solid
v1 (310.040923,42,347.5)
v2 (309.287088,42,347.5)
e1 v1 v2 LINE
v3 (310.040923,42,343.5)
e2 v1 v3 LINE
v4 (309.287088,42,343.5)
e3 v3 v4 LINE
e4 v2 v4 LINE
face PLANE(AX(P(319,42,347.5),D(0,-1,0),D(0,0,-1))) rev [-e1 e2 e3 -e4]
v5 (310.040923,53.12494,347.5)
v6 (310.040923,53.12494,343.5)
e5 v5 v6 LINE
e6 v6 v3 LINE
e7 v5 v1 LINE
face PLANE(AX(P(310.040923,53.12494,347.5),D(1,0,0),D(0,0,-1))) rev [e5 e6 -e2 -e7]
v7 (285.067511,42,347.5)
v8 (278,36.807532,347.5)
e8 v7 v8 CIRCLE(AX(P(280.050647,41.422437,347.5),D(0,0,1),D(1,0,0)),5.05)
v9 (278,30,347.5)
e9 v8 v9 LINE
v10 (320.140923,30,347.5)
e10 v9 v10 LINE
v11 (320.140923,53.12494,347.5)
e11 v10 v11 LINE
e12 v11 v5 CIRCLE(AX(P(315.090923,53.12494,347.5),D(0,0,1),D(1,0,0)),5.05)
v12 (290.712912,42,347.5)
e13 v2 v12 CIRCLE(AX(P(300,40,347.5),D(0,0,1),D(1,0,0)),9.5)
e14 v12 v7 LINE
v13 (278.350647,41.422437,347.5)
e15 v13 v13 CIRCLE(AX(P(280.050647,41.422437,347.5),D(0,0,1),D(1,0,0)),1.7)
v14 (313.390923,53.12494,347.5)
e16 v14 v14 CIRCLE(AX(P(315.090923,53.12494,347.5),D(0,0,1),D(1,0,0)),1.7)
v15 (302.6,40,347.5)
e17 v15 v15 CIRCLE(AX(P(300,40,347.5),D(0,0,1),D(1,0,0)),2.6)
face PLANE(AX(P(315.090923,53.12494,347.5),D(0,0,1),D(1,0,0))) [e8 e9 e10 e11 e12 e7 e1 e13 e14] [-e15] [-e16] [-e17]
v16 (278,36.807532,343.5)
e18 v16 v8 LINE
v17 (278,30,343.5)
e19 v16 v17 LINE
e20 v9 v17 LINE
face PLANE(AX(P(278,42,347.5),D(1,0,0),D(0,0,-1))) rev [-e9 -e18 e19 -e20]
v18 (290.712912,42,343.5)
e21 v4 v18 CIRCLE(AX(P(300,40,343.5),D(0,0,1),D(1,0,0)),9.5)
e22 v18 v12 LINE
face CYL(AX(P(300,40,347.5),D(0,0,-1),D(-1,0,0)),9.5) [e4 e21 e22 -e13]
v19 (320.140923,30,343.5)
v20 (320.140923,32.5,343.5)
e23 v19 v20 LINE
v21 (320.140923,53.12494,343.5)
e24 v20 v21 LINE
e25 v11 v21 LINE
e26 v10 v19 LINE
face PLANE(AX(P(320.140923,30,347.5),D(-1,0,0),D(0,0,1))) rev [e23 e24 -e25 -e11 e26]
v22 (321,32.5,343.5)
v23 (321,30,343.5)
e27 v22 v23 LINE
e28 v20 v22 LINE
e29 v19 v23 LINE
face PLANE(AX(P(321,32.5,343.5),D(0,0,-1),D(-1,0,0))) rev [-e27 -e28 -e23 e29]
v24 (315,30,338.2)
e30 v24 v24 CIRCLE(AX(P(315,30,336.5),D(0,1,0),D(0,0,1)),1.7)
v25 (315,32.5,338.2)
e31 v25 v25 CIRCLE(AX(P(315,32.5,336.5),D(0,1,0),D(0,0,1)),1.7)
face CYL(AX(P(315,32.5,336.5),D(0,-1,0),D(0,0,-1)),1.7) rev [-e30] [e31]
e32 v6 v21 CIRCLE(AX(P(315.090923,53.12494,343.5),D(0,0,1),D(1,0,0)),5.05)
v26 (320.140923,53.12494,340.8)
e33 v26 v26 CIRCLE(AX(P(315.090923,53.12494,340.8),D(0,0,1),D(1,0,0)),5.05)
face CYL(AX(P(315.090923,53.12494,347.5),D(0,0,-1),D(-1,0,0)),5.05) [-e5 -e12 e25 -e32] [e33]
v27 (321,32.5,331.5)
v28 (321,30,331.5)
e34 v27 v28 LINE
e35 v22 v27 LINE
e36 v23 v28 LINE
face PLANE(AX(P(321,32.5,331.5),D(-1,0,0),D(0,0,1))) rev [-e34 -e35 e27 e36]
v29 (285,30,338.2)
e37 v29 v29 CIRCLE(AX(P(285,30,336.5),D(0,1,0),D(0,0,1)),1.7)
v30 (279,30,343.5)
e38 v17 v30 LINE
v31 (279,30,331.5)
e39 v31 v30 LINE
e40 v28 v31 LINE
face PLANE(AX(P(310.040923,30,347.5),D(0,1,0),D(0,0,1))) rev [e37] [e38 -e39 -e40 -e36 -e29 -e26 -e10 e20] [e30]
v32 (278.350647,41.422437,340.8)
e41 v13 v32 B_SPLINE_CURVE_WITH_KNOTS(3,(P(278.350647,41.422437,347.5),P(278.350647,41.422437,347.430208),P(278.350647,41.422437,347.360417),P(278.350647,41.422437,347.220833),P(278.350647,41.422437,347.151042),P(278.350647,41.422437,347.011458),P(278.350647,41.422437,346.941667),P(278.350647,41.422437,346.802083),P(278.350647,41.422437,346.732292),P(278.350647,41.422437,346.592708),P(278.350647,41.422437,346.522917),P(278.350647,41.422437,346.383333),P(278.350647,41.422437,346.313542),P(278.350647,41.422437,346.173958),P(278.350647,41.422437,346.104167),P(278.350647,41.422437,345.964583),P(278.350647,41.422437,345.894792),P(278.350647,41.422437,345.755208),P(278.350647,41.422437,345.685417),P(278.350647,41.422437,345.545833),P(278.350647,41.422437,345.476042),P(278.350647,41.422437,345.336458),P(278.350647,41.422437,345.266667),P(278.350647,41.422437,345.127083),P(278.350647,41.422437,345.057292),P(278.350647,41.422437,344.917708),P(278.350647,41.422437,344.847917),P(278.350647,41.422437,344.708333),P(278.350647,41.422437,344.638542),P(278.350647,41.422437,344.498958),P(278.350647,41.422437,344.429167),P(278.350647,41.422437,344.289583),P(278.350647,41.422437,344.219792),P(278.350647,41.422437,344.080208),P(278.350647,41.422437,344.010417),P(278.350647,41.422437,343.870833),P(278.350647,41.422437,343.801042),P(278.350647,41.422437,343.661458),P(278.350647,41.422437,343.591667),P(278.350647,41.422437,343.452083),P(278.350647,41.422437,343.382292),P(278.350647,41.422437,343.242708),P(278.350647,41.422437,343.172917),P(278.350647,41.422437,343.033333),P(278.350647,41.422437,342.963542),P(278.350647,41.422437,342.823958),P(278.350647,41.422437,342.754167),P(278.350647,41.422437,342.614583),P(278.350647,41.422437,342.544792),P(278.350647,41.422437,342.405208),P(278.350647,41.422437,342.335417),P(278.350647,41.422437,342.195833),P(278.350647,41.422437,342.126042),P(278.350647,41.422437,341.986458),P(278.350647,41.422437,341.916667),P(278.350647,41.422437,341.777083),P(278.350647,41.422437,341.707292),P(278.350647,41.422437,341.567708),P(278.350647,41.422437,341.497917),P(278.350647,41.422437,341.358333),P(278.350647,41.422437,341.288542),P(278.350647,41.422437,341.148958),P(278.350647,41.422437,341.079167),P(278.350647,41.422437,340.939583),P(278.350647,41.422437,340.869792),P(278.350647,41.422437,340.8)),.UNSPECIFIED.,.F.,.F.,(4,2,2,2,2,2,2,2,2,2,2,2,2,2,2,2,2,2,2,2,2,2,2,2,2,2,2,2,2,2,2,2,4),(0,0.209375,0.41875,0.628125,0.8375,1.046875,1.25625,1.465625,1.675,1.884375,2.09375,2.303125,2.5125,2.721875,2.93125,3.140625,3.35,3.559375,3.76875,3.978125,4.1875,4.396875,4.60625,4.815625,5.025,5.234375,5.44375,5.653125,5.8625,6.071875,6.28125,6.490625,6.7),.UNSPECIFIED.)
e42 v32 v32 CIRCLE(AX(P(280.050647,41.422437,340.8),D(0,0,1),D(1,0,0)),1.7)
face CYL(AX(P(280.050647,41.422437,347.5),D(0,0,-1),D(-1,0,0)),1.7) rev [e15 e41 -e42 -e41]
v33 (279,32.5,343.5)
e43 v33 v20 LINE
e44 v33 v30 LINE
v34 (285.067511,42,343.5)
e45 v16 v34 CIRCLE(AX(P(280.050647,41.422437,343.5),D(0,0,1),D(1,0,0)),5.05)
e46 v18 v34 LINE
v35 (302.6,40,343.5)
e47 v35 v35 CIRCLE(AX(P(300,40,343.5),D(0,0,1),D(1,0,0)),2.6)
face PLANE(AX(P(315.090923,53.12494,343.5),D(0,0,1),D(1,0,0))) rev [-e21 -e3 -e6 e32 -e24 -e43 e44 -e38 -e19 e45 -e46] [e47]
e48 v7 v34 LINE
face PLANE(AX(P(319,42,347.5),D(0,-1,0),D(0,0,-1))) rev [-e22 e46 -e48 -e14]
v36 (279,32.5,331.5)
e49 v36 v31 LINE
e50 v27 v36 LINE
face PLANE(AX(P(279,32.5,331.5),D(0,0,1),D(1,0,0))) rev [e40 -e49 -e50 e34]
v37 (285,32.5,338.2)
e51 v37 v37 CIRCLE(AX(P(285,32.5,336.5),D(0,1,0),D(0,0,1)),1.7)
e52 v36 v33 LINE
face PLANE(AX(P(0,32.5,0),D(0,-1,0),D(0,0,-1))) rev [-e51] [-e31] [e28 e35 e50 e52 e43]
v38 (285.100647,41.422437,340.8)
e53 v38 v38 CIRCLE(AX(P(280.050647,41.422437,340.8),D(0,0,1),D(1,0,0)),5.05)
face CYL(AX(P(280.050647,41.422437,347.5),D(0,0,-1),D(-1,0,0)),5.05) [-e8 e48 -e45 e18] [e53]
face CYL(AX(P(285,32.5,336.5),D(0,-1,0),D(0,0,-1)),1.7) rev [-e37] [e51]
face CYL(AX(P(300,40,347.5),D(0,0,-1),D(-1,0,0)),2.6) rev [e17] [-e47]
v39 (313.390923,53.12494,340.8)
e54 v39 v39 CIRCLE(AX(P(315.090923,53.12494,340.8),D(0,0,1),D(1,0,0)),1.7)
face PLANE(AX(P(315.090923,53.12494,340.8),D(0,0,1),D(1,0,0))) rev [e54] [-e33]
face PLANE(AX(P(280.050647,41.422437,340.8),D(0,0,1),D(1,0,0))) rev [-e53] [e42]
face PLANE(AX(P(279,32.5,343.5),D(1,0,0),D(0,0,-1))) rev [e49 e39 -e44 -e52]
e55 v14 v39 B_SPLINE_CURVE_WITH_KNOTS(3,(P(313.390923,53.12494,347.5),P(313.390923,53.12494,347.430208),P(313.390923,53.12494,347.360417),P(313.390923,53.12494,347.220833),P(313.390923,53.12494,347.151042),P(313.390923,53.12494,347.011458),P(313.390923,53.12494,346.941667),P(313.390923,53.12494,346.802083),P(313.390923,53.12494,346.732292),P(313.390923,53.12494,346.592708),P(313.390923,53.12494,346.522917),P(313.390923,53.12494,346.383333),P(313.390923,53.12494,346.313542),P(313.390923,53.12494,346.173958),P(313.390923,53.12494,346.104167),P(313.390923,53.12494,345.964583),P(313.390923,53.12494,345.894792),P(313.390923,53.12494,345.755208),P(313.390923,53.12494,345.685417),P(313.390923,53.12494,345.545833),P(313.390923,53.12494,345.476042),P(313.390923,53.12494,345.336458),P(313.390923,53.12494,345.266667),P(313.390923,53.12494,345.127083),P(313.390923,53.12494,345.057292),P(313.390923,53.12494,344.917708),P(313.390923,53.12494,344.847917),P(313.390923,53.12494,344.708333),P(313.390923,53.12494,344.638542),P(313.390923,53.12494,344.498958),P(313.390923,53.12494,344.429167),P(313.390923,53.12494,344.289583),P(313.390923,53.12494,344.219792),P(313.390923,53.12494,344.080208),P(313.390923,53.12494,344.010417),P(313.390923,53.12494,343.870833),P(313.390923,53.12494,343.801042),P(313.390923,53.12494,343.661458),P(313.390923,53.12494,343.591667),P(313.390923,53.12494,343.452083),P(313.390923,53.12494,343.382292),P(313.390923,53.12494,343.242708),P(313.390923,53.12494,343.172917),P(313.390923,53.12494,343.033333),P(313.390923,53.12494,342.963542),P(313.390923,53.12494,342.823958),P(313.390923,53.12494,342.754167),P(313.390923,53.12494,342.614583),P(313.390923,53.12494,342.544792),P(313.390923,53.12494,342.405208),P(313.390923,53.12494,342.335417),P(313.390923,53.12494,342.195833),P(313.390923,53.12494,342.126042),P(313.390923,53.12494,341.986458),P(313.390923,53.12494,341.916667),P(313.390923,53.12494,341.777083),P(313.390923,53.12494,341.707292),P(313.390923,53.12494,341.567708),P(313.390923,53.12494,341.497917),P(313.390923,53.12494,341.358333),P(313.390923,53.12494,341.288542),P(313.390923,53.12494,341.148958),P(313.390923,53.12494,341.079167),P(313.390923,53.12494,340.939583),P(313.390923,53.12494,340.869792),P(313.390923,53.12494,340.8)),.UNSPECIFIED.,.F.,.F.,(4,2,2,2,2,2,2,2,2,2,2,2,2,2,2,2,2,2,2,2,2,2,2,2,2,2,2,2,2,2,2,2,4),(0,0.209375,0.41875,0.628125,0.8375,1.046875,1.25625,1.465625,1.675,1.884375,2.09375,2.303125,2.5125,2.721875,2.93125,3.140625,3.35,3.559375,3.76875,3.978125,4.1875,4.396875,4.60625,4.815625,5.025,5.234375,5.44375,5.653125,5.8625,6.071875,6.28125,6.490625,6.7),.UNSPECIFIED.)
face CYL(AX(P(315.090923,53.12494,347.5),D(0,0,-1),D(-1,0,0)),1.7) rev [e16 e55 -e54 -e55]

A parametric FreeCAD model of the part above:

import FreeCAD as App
import Part
import Sketcher
Q = App.Units.Quantity

doc = App.newDocument("Part")
body = doc.addObject("PartDesign::Body", "Body")

# Sketch on XY plane
sketch1 = body.newObject("Sketcher::SketchObject", "Sketch")
sketch1.AttachmentSupport = (doc.getObject("XY_Plane"), [""])
sketch1.MapMode = "FlatFace"
sketch1.AttachmentOffset = App.Placement(App.Vector(0, 0, 343.5), App.Rotation())
sketch1.addGeometry(Part.LineSegment(App.Vector(278, 42, 0), App.Vector(278, 30, 0)), False)
sketch1.addGeometry(Part.LineSegment(App.Vector(278, 30, 0), App.Vector(319, 30, 0)), False)
sketch1.addGeometry(Part.LineSegment(App.Vector(319, 30, 0), App.Vector(319, 42, 0)), False)
sketch1.addGeometry(Part.LineSegment(App.Vector(319, 42, 0), App.Vector(278, 42, 0)), False)
sketch1.addConstraint(Sketcher.Constraint("Coincident", 0, 2, 1, 1))
sketch1.addConstraint(Sketcher.Constraint("Coincident", 1, 2, 2, 1))
sketch1.addConstraint(Sketcher.Constraint("Coincident", 2, 2, 3, 1))
sketch1.addConstraint(Sketcher.Constraint("Coincident", 3, 2, 0, 1))
sketch1.addConstraint(Sketcher.Constraint("Vertical", 0))
sketch1.addConstraint(Sketcher.Constraint("Horizontal", 1))
sketch1.addConstraint(Sketcher.Constraint("Vertical", 2))
sketch1.addConstraint(Sketcher.Constraint("Horizontal", 3))
sketch1.addConstraint(Sketcher.Constraint("DistanceX", 1, 1, 1, 2, Q("41 mm")))
sketch1.addConstraint(Sketcher.Constraint("DistanceY", 0, 2, 0, 1, Q("12 mm")))
sketch1.addConstraint(Sketcher.Constraint("DistanceX", -1, 1, 0, 2, Q("278 mm")))
sketch1.addConstraint(Sketcher.Constraint("DistanceY", -1, 1, 0, 2, Q("30 mm")))
pad1 = body.newObject("PartDesign::Pad", "Pad")
pad1.Profile = sketch1
pad1.Length = 4

# Sketch on XY plane
sketch2 = body.newObject("Sketcher::SketchObject", "Sketch001")
sketch2.AttachmentSupport = (doc.getObject("XY_Plane"), [""])
sketch2.MapMode = "FlatFace"
sketch2.AttachmentOffset = App.Placement(App.Vector(0, 0, 343.5), App.Rotation())
sketch2.addGeometry(Part.Circle(App.Vector(300, 40, 0), App.Vector(0, 0, 1), 9.5), False)
sketch2.addGeometry(Part.Circle(App.Vector(300, 40, 0), App.Vector(0, 0, 1), 2.6), False)
sketch2.addConstraint(Sketcher.Constraint("Coincident", 1, 3, 0, 3))
sketch2.addConstraint(Sketcher.Constraint("Diameter", 0, Q("19 mm")))
sketch2.addConstraint(Sketcher.Constraint("Diameter", 1, Q("5.2 mm")))
sketch2.addConstraint(Sketcher.Constraint("DistanceX", -1, 1, 0, 3, Q("300 mm")))
sketch2.addConstraint(Sketcher.Constraint("DistanceY", -1, 1, 0, 3, Q("40 mm")))
pad2 = body.newObject("PartDesign::Pad", "Pad001")
pad2.Profile = sketch2
pad2.Length = 4

# Sketch on XY plane
sketch3 = body.newObject("Sketcher::SketchObject", "Sketch002")
sketch3.AttachmentSupport = (doc.getObject("XY_Plane"), [""])
sketch3.MapMode = "FlatFace"
sketch3.AttachmentOffset = App.Placement(App.Vector(0, 0, 343.5), App.Rotation())
sketch3.addGeometry(Part.Circle(App.Vector(280.050647, 41.422437, 0), App.Vector(0, 0, 1), 5.05), False)
sketch3.addConstraint(Sketcher.Constraint("Diameter", 0, Q("10.1 mm")))
sketch3.addConstraint(Sketcher.Constraint("DistanceX", -1, 1, 0, 3, Q("280.050647 mm")))
sketch3.addConstraint(Sketcher.Constraint("DistanceY", -1, 1, 0, 3, Q("41.422437 mm")))
pad3 = body.newObject("PartDesign::Pad", "Pad002")
pad3.Profile = sketch3
pad3.Length = 4
body2 = doc.addObject("PartDesign::Body", "Body001")

# Sketch on XY plane
sketch4 = body2.newObject("Sketcher::SketchObject", "Sketch003")
sketch4.AttachmentSupport = (doc.getObject("XY_Plane001"), [""])
sketch4.MapMode = "FlatFace"
sketch4.AttachmentOffset = App.Placement(App.Vector(0, 0, 343.5), App.Rotation())
sketch4.addGeometry(Part.Circle(App.Vector(315.090923, 53.12494, 0), App.Vector(0, 0, 1), 5.05), False)
sketch4.addConstraint(Sketcher.Constraint("Diameter", 0, Q("10.1 mm")))
sketch4.addConstraint(Sketcher.Constraint("DistanceY", -1, 1, 0, 3, Q("53.12494 mm")))
sketch4.addConstraint(Sketcher.Constraint("DistanceX", -1, 1, 0, 3, Q("315.090923 mm")))
pad4 = body2.newObject("PartDesign::Pad", "Pad003")
pad4.Profile = sketch4
pad4.Length = 4
body.AllowCompound = True
doc.recompute()

boolean = body.newObject("PartDesign::Boolean", "Boolean")
boolean.Type = "Fuse"
boolean.addObjects([body2])

# Sketch on XY plane
sketch5 = body.newObject("Sketcher::SketchObject", "Sketch004")
sketch5.AttachmentSupport = (doc.getObject("XY_Plane"), [""])
sketch5.MapMode = "FlatFace"
sketch5.AttachmentOffset = App.Placement(App.Vector(0, 0, 343.5), App.Rotation())
sketch5.addGeometry(Part.LineSegment(App.Vector(310.040923, 53.12494, 0), App.Vector(310.040923, 30, 0)), False)
sketch5.addGeometry(Part.LineSegment(App.Vector(310.040923, 30, 0), App.Vector(320.140923, 30, 0)), False)
sketch5.addGeometry(Part.LineSegment(App.Vector(320.140923, 30, 0), App.Vector(320.140923, 53.12494, 0)), False)
sketch5.addGeometry(Part.LineSegment(App.Vector(320.140923, 53.12494, 0), App.Vector(310.040923, 53.12494, 0)), False)
sketch5.addConstraint(Sketcher.Constraint("Coincident", 0, 2, 1, 1))
sketch5.addConstraint(Sketcher.Constraint("Coincident", 1, 2, 2, 1))
sketch5.addConstraint(Sketcher.Constraint("Coincident", 2, 2, 3, 1))
sketch5.addConstraint(Sketcher.Constraint("Coincident", 3, 2, 0, 1))
sketch5.addConstraint(Sketcher.Constraint("Vertical", 0))
sketch5.addConstraint(Sketcher.Constraint("Horizontal", 1))
sketch5.addConstraint(Sketcher.Constraint("Vertical", 2))
sketch5.addConstraint(Sketcher.Constraint("Horizontal", 3))
sketch5.addConstraint(Sketcher.Constraint("DistanceX", 1, 1, 1, 2, Q("10.1 mm")))
sketch5.addConstraint(Sketcher.Constraint("DistanceY", -1, 1, 0, 2, Q("30 mm")))
sketch5.addConstraint(Sketcher.Constraint("DistanceY", 0, 2, 0, 1, Q("23.12494 mm")))
sketch5.addConstraint(Sketcher.Constraint("DistanceX", -1, 1, 0, 2, Q("310.040923 mm")))
pad5 = body.newObject("PartDesign::Pad", "Pad004")
pad5.Profile = sketch5
pad5.Length = 4

# Sketch on XZ plane
sketch6 = body.newObject("Sketcher::SketchObject", "Sketch005")
sketch6.AttachmentSupport = (doc.getObject("XZ_Plane"), [""])
sketch6.MapMode = "FlatFace"
sketch6.AttachmentOffset = App.Placement(App.Vector(0, 0, -30), App.Rotation())
sketch6.addGeometry(Part.LineSegment(App.Vector(279, 331.5, 0), App.Vector(279, 343.5, 0)), False)
sketch6.addGeometry(Part.LineSegment(App.Vector(279, 343.5, 0), App.Vector(321, 343.5, 0)), False)
sketch6.addGeometry(Part.LineSegment(App.Vector(321, 343.5, 0), App.Vector(321, 331.5, 0)), False)
sketch6.addGeometry(Part.LineSegment(App.Vector(321, 331.5, 0), App.Vector(279, 331.5, 0)), False)
sketch6.addGeometry(Part.Circle(App.Vector(285, 336.5, 0), App.Vector(0, 0, 1), 1.7), False)
sketch6.addGeometry(Part.Circle(App.Vector(315, 336.5, 0), App.Vector(0, 0, 1), 1.7), False)
sketch6.addConstraint(Sketcher.Constraint("Coincident", 0, 2, 1, 1))
sketch6.addConstraint(Sketcher.Constraint("Coincident", 1, 2, 2, 1))
sketch6.addConstraint(Sketcher.Constraint("Coincident", 2, 2, 3, 1))
sketch6.addConstraint(Sketcher.Constraint("Coincident", 3, 2, 0, 1))
sketch6.addConstraint(Sketcher.Constraint("Vertical", 0))
sketch6.addConstraint(Sketcher.Constraint("Horizontal", 1))
sketch6.addConstraint(Sketcher.Constraint("Vertical", 2))
sketch6.addConstraint(Sketcher.Constraint("Horizontal", 3))
sketch6.addConstraint(Sketcher.Constraint("Equal", 4, 5))
sketch6.addConstraint(Sketcher.Constraint("Horizontal", 4, 3, 5, 3))
sketch6.addConstraint(Sketcher.Constraint("Diameter", 4, Q("3.4 mm")))
sketch6.addConstraint(Sketcher.Constraint("DistanceX", 1, 1, 1, 2, Q("42 mm")))
sketch6.addConstraint(Sketcher.Constraint("DistanceY", 0, 1, 0, 2, Q("12 mm")))
sketch6.addConstraint(Sketcher.Constraint("DistanceX", -1, 1, 4, 3, Q("285 mm")))
sketch6.addConstraint(Sketcher.Constraint("DistanceX", -1, 1, 5, 3, Q("315 mm")))
sketch6.addConstraint(Sketcher.Constraint("DistanceX", -1, 1, 0, 2, Q("279 mm")))
sketch6.addConstraint(Sketcher.Constraint("DistanceY", 4, 3, 0, 2, Q("7 mm")))
sketch6.addConstraint(Sketcher.Constraint("DistanceY", -1, 1, 4, 3, Q("336.5 mm")))
pad6 = body.newObject("PartDesign::Pad", "Pad005")
pad6.Profile = sketch6
pad6.Length = 2.5
pad6.Reversed = True

# Sketch on XY plane
sketch7 = body.newObject("Sketcher::SketchObject", "Sketch006")
sketch7.AttachmentSupport = (doc.getObject("XY_Plane"), [""])
sketch7.MapMode = "FlatFace"
sketch7.AttachmentOffset = App.Placement(App.Vector(0, 0, 343.5), App.Rotation())
sketch7.addGeometry(Part.Circle(App.Vector(300, 40, 0), App.Vector(0, 0, 1), 2.6), False)
sketch7.addConstraint(Sketcher.Constraint("Diameter", 0, Q("5.2 mm")))
sketch7.addConstraint(Sketcher.Constraint("DistanceX", -1, 1, 0, 3, Q("300 mm")))
sketch7.addConstraint(Sketcher.Constraint("DistanceY", -1, 1, 0, 3, Q("40 mm")))
pocket1 = body.newObject("PartDesign::Pocket", "Pocket")
pocket1.Profile = sketch7
pocket1.Length = 4
pocket1.Reversed = True

# Sketch on XY plane
sketch8 = body.newObject("Sketcher::SketchObject", "Sketch007")
sketch8.AttachmentSupport = (doc.getObject("XY_Plane"), [""])
sketch8.MapMode = "FlatFace"
sketch8.AttachmentOffset = App.Placement(App.Vector(0, 0, 340.8), App.Rotation())
sketch8.addGeometry(Part.Circle(App.Vector(315.090923, 53.12494, 0), App.Vector(0, 0, 1), 5.05), False)
sketch8.addGeometry(Part.Circle(App.Vector(280.050647, 41.422437, 0), App.Vector(0, 0, 1), 5.05), False)
sketch8.addConstraint(Sketcher.Constraint("Equal", 0, 1))
sketch8.addConstraint(Sketcher.Constraint("Diameter", 0, Q("10.1 mm")))
sketch8.addConstraint(Sketcher.Constraint("DistanceY", -1, 1, 0, 3, Q("53.12494 mm")))
sketch8.addConstraint(Sketcher.Constraint("DistanceX", -1, 1, 0, 3, Q("315.090923 mm")))
sketch8.addConstraint(Sketcher.Constraint("DistanceX", -1, 1, 1, 3, Q("280.050647 mm")))
sketch8.addConstraint(Sketcher.Constraint("DistanceY", -1, 1, 1, 3, Q("41.422437 mm")))
pad7 = body.newObject("PartDesign::Pad", "Pad006")
pad7.Profile = sketch8
pad7.Length = 2.7

# Sketch on XY plane
sketch9 = body.newObject("Sketcher::SketchObject", "Sketch008")
sketch9.AttachmentSupport = (doc.getObject("XY_Plane"), [""])
sketch9.MapMode = "FlatFace"
sketch9.AttachmentOffset = App.Placement(App.Vector(0, 0, 340.8), App.Rotation())
sketch9.addGeometry(Part.Circle(App.Vector(315.090923, 53.12494, 0), App.Vector(0, 0, 1), 1.7), False)
sketch9.addGeometry(Part.Circle(App.Vector(280.050647, 41.422437, 0), App.Vector(0, 0, 1), 1.7), False)
sketch9.addConstraint(Sketcher.Constraint("Equal", 0, 1))
sketch9.addConstraint(Sketcher.Constraint("Diameter", 0, Q("3.4 mm")))
sketch9.addConstraint(Sketcher.Constraint("DistanceY", -1, 1, 0, 3, Q("53.12494 mm")))
sketch9.addConstraint(Sketcher.Constraint("DistanceX", -1, 1, 0, 3, Q("315.090923 mm")))
sketch9.addConstraint(Sketcher.Constraint("DistanceX", -1, 1, 1, 3, Q("280.050647 mm")))
sketch9.addConstraint(Sketcher.Constraint("DistanceY", -1, 1, 1, 3, Q("41.422437 mm")))
pocket2 = body.newObject("PartDesign::Pocket", "Pocket001")
pocket2.Profile = sketch9
pocket2.Length = 6.7
pocket2.Reversed = True

doc.recompute()
